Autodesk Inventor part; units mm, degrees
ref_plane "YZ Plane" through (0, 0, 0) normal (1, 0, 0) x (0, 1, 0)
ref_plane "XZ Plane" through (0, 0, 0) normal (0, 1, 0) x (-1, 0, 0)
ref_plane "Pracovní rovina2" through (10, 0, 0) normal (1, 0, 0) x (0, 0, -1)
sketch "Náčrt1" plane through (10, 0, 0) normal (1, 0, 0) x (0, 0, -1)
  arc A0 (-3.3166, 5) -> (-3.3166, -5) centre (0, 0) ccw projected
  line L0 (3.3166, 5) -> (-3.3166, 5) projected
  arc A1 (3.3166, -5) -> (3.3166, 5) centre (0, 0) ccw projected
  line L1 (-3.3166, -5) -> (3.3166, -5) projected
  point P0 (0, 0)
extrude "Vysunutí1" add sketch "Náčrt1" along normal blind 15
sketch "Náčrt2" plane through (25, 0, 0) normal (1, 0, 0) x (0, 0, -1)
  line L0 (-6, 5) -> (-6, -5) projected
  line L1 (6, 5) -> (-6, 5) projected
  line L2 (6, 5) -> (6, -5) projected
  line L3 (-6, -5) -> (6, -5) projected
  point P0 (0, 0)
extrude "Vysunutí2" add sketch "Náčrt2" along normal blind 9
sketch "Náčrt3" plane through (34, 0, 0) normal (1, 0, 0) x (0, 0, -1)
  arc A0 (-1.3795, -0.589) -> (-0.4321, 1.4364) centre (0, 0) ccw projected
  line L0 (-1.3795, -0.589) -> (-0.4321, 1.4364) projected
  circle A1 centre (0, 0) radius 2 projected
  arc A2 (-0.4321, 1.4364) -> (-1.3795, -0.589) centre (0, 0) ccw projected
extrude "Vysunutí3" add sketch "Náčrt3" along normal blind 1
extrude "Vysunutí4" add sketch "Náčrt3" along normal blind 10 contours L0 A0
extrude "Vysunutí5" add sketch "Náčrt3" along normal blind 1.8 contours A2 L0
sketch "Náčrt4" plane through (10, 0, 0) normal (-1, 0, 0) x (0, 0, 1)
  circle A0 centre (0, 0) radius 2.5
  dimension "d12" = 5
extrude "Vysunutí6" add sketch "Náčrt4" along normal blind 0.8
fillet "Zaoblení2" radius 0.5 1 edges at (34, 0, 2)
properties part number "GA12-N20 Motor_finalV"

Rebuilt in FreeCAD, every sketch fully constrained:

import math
import FreeCAD as App
import Part
import Sketcher

V = App.Vector


def edges_at(feature, points):
    """Names of the edges that pass closest to the given points."""
    edges = feature.Shape.Edges
    near = lambda p: min(range(len(edges)), key=lambda i: edges[i].distToShape(Part.Vertex(*p))[0])
    return sorted({f"Edge{near(p) + 1}" for p in points})


def add_polygon(sketch, points):
    """Adds a closed chain of lines whose ends are joined by coincident constraints."""
    first, n = sketch.GeometryCount, len(points)
    for a, b in zip(points, points[1:] + points[:1]):
        sketch.addGeometry(Part.LineSegment(App.Vector(*a, 0), App.Vector(*b, 0)), False)
    for i in range(n):
        sketch.addConstraint(Sketcher.Constraint("Coincident", first + i, 2, first + (i + 1) % n, 1))

doc = App.newDocument("Part")
body = doc.addObject("PartDesign::Body", "Body")

# Sketch on YZ plane
sketch1 = body.newObject("Sketcher::SketchObject", "Sketch")
sketch1.AttachmentSupport = (doc.getObject("YZ_Plane"), [""])
sketch1.MapMode = "FlatFace"
sketch1.AttachmentOffset = App.Placement(V(0, 0, 10), App.Rotation())
sketch1.addGeometry(Part.LineSegment(V(5, -3, 0), V(5, 3, 0)), False)
sketch1.addGeometry(Part.ArcOfCircle(Part.Circle(V(0, 0, 0), V(0, 0, 1), 6), math.radians(34), math.radians(146)), False)
sketch1.addGeometry(Part.LineSegment(V(-5, 3, 0), V(-5, -3, 0)), False)
sketch1.addGeometry(Part.ArcOfCircle(Part.Circle(V(0, 0, 0), V(0, 0, 1), 6), math.radians(-146), math.radians(-34)), False)
sketch1.addConstraint(Sketcher.Constraint("Coincident", 0, 2, 1, 1))
sketch1.addConstraint(Sketcher.Constraint("Coincident", 1, 2, 2, 1))
sketch1.addConstraint(Sketcher.Constraint("Coincident", 2, 2, 3, 1))
sketch1.addConstraint(Sketcher.Constraint("Coincident", 3, 2, 0, 1))
sketch1.addConstraint(Sketcher.Constraint("Vertical", 0))
sketch1.addConstraint(Sketcher.Constraint("Vertical", 2))
sketch1.addConstraint(Sketcher.Constraint("Coincident", 1, 3, -1, 1))
sketch1.addConstraint(Sketcher.Constraint("Coincident", 3, 3, -1, 1))
sketch1.addConstraint(Sketcher.Constraint("Equal", 1, 3))
sketch1.addConstraint(Sketcher.Constraint("Horizontal", 0, 2, 1, 2))
sketch1.addConstraint(Sketcher.Constraint("Radius", 1, 6.0))
sketch1.addConstraint(Sketcher.Constraint("DistanceX", -1, 1, 0, 2, 5.0))
pad1 = body.newObject("PartDesign::Pad", "Pad")
pad1.Profile = sketch1
pad1.Length = 15

# Sketch on YZ plane
sketch2 = body.newObject("Sketcher::SketchObject", "Sketch001")
sketch2.AttachmentSupport = (doc.getObject("YZ_Plane"), [""])
sketch2.MapMode = "FlatFace"
sketch2.AttachmentOffset = App.Placement(V(0, 0, 25), App.Rotation())
add_polygon(sketch2, [(5, -6), (5, 6), (-5, 6), (-5, -6)])  # lines 0-3
sketch2.addConstraint(Sketcher.Constraint("Vertical", 0))
sketch2.addConstraint(Sketcher.Constraint("Horizontal", 1))
sketch2.addConstraint(Sketcher.Constraint("Vertical", 2))
sketch2.addConstraint(Sketcher.Constraint("Horizontal", 3))
sketch2.addConstraint(Sketcher.Constraint("Symmetric", 0, 2, 2, 2, -1, 1))
sketch2.addConstraint(Sketcher.Constraint("DistanceX", 1, 2, 1, 1, 10.0))
sketch2.addConstraint(Sketcher.Constraint("DistanceY", 0, 1, 0, 2, 12.0))
pad2 = body.newObject("PartDesign::Pad", "Pad001")
pad2.Profile = sketch2
pad2.Length = 9

# Sketch on YZ plane
sketch3 = body.newObject("Sketcher::SketchObject", "Sketch002")
sketch3.AttachmentSupport = (doc.getObject("YZ_Plane"), [""])
sketch3.MapMode = "FlatFace"
sketch3.AttachmentOffset = App.Placement(V(0, 0, 34), App.Rotation())
sketch3.addGeometry(Part.Circle(V(0, 0, 0), V(0, 0, 1), 2), False)
sketch3.addGeometry(Part.ArcOfCircle(Part.Circle(V(0, 0, 0), V(0, 0, 1), 1.5), math.radians(113), math.radians(377)), False)
sketch3.addGeometry(Part.ArcOfCircle(Part.Circle(V(0, 0, 0), V(0, 0, 1), 1.5), math.radians(17), math.radians(113)), False)
sketch3.addConstraint(Sketcher.Constraint("Tangent", 1, 1, 2, 2))
sketch3.addConstraint(Sketcher.Constraint("Coincident", 2, 1, 1, 2))
sketch3.addConstraint(Sketcher.Constraint("Coincident", 0, 3, -1, 1))
sketch3.addConstraint(Sketcher.Constraint("Coincident", 1, 3, -1, 1))
sketch3.addConstraint(Sketcher.Constraint("Diameter", 0, 4.0))
sketch3.addConstraint(Sketcher.Constraint("Radius", 1, 1.5))
sketch3.addConstraint(Sketcher.Constraint("DistanceX", 1, 1, -1, 1, 0.589))
sketch3.addConstraint(Sketcher.Constraint("DistanceY", -1, 1, 2, 1, 0.432))
pad3 = body.newObject("PartDesign::Pad", "Pad002")
pad3.Profile = sketch3
pad3.Length = 1

# Sketch on YZ plane
sketch4 = body.newObject("Sketcher::SketchObject", "Sketch003")
sketch4.AttachmentSupport = (doc.getObject("YZ_Plane"), [""])
sketch4.MapMode = "FlatFace"
sketch4.AttachmentOffset = App.Placement(V(0, 0, 34), App.Rotation())
sketch4.addGeometry(Part.LineSegment(V(1.4, 0.4, 0), V(-0.6, 1.4, 0)), False)
sketch4.addGeometry(Part.ArcOfCircle(Part.Circle(V(0, 0, 0), V(0, 0, 1), 1.5), math.radians(113), math.radians(377)), False)
sketch4.addConstraint(Sketcher.Constraint("Coincident", 0, 1, 1, 2))
sketch4.addConstraint(Sketcher.Constraint("Coincident", 1, 1, 0, 2))
sketch4.addConstraint(Sketcher.Constraint("Coincident", 1, 3, -1, 1))
sketch4.addConstraint(Sketcher.Constraint("Radius", 1, 1.5))
sketch4.addConstraint(Sketcher.Constraint("Distance", 0, 2.236))
sketch4.addConstraint(Sketcher.Constraint("DistanceY", -1, 1, 0, 1, 0.432))
pad4 = body.newObject("PartDesign::Pad", "Pad003")
pad4.Profile = sketch4
pad4.Length = 10

# Sketch on YZ plane
sketch5 = body.newObject("Sketcher::SketchObject", "Sketch004")
sketch5.AttachmentSupport = (doc.getObject("YZ_Plane"), [""])
sketch5.MapMode = "FlatFace"
sketch5.AttachmentOffset = App.Placement(V(0, 0, 34), App.Rotation())
sketch5.addGeometry(Part.ArcOfCircle(Part.Circle(V(0, 0, 0), V(0, 0, 1), 1.5), math.radians(17), math.radians(113)), False)
sketch5.addGeometry(Part.LineSegment(V(-0.6, 1.4, 0), V(1.4, 0.4, 0)), False)
sketch5.addConstraint(Sketcher.Constraint("Coincident", 0, 1, 1, 2))
sketch5.addConstraint(Sketcher.Constraint("Coincident", 1, 1, 0, 2))
sketch5.addConstraint(Sketcher.Constraint("Coincident", 0, 3, -1, 1))
sketch5.addConstraint(Sketcher.Constraint("Radius", 0, 1.5))
sketch5.addConstraint(Sketcher.Constraint("Distance", 1, 2.236))
sketch5.addConstraint(Sketcher.Constraint("DistanceY", -1, 1, 0, 1, 0.432))
pad5 = body.newObject("PartDesign::Pad", "Pad004")
pad5.Profile = sketch5
pad5.Length = 1.8

# Sketch on YZ plane
sketch6 = body.newObject("Sketcher::SketchObject", "Sketch005")
sketch6.AttachmentSupport = (doc.getObject("YZ_Plane"), [""])
sketch6.MapMode = "FlatFace"
sketch6.AttachmentOffset = App.Placement(V(0, 0, 10), App.Rotation())
sketch6.addGeometry(Part.Circle(V(0, 0, 0), V(0, 0, 1), 2.5), False)
sketch6.addConstraint(Sketcher.Constraint("Coincident", 0, 3, -1, 1))
sketch6.addConstraint(Sketcher.Constraint("Diameter", 0, 5.0))
pad6 = body.newObject("PartDesign::Pad", "Pad005")
pad6.Profile = sketch6
pad6.Length = 0.8
pad6.Reversed = True
doc.recompute()

fillet = body.newObject("PartDesign::Fillet", "Fillet")
fillet.Base = (pad6, edges_at(pad6, [(34, 0, 2)]))
fillet.Radius = 0.5

doc.recompute()
